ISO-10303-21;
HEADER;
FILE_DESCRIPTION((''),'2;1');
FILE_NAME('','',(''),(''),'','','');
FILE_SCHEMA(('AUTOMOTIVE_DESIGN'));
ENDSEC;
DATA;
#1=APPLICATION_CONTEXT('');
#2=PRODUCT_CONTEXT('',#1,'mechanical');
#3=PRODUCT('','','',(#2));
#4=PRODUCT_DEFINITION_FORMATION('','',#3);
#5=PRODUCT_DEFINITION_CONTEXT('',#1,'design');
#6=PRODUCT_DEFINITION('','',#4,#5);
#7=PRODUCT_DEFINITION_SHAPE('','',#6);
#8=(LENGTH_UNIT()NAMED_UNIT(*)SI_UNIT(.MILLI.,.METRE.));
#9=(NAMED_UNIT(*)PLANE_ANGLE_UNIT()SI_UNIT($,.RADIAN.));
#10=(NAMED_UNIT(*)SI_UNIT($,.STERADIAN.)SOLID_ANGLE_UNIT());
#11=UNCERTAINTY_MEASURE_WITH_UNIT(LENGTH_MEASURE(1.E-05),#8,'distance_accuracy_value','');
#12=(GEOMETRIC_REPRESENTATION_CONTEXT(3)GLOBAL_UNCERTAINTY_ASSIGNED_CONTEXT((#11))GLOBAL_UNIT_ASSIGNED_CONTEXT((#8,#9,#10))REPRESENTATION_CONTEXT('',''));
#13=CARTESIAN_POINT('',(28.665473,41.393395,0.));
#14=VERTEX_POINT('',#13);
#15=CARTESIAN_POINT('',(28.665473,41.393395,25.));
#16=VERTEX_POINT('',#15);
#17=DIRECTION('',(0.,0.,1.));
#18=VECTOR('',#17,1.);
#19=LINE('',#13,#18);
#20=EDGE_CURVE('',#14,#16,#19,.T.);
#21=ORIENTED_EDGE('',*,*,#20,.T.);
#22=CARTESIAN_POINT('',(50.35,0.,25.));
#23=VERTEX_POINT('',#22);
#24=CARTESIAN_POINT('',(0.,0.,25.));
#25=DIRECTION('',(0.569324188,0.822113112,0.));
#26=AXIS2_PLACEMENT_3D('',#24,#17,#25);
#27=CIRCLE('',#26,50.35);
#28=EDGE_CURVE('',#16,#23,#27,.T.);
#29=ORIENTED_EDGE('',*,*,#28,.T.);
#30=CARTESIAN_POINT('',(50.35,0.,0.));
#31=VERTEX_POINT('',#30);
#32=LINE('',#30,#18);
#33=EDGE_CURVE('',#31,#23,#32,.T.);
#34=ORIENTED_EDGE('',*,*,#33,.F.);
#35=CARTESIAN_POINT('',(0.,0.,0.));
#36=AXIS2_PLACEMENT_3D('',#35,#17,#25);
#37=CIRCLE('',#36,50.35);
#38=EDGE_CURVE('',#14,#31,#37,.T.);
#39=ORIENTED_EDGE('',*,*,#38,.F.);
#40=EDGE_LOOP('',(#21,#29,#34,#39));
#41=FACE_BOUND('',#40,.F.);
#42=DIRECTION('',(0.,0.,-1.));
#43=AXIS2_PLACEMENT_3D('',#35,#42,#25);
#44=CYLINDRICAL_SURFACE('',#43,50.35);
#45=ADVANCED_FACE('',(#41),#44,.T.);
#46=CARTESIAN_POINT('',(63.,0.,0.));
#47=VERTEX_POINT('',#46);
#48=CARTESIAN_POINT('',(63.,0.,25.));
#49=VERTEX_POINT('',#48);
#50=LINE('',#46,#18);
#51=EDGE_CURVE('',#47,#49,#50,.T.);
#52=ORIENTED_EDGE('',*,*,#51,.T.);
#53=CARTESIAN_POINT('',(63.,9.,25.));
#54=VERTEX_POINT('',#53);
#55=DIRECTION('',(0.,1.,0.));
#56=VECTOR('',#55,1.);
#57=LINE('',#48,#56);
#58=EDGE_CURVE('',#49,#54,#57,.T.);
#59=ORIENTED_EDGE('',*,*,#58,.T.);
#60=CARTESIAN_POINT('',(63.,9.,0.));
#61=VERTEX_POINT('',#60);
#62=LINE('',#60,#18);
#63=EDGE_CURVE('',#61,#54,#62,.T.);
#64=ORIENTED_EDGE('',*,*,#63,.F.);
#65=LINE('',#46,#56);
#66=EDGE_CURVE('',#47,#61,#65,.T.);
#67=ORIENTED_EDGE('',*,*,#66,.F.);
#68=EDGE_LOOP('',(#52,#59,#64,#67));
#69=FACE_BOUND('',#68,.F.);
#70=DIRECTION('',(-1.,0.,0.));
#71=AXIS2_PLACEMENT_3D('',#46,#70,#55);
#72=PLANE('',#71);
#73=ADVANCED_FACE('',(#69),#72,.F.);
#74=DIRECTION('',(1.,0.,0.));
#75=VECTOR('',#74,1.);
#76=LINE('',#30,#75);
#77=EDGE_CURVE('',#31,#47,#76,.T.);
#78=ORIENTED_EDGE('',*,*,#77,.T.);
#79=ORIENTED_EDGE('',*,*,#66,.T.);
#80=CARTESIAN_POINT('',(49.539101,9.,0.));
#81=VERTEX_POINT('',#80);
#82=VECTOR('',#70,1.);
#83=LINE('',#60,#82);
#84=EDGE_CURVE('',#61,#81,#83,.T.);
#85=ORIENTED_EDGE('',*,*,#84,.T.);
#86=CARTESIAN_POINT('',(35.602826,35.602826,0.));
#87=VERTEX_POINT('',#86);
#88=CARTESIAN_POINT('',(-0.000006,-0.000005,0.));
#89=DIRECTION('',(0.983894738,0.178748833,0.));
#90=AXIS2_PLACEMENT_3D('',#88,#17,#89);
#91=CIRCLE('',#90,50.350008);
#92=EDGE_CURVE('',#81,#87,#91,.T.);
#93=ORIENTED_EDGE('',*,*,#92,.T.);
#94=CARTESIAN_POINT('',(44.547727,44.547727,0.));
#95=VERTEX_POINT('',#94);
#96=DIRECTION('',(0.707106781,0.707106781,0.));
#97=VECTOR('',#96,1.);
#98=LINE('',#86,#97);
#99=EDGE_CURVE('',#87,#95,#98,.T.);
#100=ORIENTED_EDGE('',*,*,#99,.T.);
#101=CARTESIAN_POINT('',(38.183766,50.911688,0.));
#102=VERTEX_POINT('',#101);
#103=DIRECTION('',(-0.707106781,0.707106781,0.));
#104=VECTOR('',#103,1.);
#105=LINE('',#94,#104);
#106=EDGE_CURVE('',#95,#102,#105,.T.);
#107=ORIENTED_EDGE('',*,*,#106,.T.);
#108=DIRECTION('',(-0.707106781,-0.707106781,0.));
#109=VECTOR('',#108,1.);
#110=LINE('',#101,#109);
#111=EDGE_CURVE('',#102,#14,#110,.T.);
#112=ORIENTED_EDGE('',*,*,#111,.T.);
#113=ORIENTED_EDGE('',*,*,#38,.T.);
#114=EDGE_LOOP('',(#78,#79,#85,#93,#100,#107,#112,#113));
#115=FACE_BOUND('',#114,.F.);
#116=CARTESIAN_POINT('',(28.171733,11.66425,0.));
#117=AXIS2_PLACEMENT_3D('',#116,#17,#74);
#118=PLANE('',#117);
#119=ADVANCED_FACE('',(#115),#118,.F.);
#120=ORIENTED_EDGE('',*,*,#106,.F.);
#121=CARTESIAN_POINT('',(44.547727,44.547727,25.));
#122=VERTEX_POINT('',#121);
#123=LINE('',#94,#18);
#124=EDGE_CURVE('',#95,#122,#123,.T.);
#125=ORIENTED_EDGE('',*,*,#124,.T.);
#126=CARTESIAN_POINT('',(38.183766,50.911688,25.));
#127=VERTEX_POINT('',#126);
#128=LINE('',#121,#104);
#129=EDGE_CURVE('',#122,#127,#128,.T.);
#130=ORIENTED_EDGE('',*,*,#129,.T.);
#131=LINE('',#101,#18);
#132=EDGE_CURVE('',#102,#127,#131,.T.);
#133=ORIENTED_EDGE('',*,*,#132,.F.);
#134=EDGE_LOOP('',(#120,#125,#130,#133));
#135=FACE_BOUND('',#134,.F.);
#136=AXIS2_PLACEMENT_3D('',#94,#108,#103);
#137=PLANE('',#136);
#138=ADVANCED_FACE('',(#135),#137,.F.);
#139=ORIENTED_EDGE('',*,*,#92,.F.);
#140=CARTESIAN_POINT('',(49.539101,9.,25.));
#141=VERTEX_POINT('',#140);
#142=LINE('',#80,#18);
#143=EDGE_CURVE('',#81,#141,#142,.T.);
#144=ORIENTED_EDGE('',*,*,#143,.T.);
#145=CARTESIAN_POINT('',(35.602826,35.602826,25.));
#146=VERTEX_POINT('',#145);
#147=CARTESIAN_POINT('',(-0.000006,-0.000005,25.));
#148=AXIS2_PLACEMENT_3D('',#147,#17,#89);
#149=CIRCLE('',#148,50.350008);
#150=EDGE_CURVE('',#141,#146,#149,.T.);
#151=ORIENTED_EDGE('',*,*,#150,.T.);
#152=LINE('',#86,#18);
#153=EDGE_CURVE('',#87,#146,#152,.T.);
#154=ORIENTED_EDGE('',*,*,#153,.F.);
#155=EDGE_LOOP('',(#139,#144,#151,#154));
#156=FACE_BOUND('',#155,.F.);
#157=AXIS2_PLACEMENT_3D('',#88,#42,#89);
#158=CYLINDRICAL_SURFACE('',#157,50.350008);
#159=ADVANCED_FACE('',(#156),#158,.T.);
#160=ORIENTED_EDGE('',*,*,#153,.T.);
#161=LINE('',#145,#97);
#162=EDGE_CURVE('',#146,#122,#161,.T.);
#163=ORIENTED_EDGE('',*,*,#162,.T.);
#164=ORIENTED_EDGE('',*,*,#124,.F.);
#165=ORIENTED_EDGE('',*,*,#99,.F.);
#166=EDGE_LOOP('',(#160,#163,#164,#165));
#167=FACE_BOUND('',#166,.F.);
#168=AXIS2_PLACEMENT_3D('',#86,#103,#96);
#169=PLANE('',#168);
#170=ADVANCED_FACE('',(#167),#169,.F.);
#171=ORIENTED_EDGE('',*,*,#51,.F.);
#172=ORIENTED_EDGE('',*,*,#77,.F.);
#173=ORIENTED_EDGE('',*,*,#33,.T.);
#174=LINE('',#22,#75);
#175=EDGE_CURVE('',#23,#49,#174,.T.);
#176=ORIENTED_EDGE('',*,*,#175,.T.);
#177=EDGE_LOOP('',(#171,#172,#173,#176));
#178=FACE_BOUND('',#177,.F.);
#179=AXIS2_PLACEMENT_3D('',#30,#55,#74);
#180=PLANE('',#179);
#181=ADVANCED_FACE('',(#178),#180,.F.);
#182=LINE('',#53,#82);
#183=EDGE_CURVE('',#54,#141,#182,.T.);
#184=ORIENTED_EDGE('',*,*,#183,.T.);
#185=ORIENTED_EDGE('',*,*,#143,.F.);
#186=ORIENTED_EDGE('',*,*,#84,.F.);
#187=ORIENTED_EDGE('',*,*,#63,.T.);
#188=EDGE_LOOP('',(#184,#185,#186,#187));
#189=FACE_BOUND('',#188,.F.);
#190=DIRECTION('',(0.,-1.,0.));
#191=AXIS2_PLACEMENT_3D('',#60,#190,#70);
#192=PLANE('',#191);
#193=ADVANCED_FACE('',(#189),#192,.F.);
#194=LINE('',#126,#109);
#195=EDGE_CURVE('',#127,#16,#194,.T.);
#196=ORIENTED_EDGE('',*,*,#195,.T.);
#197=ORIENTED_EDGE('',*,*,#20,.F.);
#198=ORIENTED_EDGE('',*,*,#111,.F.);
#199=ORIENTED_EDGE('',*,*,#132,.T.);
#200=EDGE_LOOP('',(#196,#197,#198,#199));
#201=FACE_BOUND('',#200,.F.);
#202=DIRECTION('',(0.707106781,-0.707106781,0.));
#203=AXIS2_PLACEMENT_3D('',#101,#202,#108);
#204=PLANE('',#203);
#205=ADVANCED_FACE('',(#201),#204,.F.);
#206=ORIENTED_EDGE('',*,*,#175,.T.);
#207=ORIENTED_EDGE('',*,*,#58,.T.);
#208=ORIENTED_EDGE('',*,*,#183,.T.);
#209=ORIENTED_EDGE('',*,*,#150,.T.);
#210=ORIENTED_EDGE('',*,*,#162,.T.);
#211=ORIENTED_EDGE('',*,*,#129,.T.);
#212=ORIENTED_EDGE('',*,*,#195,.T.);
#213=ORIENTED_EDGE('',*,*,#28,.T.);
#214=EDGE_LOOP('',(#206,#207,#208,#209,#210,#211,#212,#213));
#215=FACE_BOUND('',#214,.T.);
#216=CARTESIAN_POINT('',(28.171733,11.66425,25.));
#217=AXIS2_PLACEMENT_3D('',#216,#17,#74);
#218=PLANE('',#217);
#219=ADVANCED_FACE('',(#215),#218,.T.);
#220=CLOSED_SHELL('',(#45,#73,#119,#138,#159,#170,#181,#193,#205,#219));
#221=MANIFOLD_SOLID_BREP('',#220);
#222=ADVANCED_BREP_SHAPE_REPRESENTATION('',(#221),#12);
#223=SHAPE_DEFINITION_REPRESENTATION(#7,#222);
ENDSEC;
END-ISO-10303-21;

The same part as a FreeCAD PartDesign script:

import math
import FreeCAD as App
import Part
import Sketcher

V = App.Vector
Q = App.Units.Quantity

doc = App.newDocument("Part")
body = doc.addObject("PartDesign::Body", "Body")

sketch1 = body.newObject("Sketcher::SketchObject", "Sketch")
sketch1.AttachmentSupport = (doc.getObject("XY_Plane"), [""])
sketch1.MapMode = "FlatFace"
sketch1.addGeometry([
    Part.LineSegment(V(50, 0, 0), V(63, 0, 0)),
    Part.LineSegment(V(63, 0, 0), V(63, 9, 0)),
    Part.LineSegment(V(63, 9, 0), V(50, 9, 0)),
    Part.ArcOfCircle(Part.Circle(V(0, 0, 0), V(0, 0, 1), 50), math.radians(10), math.radians(45)),
    Part.LineSegment(V(36, 36, 0), V(45, 45, 0)),
    Part.LineSegment(V(45, 45, 0), V(38, 51, 0)),
    Part.LineSegment(V(38, 51, 0), V(29, 41, 0)),
    Part.ArcOfCircle(Part.Circle(V(0, 0, 0), V(0, 0, 1), 50), math.radians(55), math.radians(360)),
], False)
sketch1.addConstraint([
    Sketcher.Constraint("Coincident", 0, 2, 1, 1),
    Sketcher.Constraint("Coincident", 1, 2, 2, 1),
    Sketcher.Constraint("Coincident", 2, 2, 3, 1),
    Sketcher.Constraint("Coincident", 3, 2, 4, 1),
    Sketcher.Constraint("Coincident", 4, 2, 5, 1),
    Sketcher.Constraint("Coincident", 5, 2, 6, 1),
    Sketcher.Constraint("Coincident", 6, 2, 7, 1),
    Sketcher.Constraint("Coincident", 7, 2, 0, 1),
    Sketcher.Constraint("Horizontal", 0),
    Sketcher.Constraint("Vertical", 1),
    Sketcher.Constraint("Horizontal", 2),
    Sketcher.Constraint("Coincident", 3, 3, -1, 1),
    Sketcher.Constraint("Coincident", 7, 3, -1, 1),
    Sketcher.Constraint("PointOnObject", 0, 2, -1),
    Sketcher.Constraint("Perpendicular", 4, 5),
    Sketcher.Constraint("Perpendicular", 5, 6),
    Sketcher.Constraint("DistanceY", 1, 1, 1, 2, 9.0),
    Sketcher.Constraint("Angle", 4, Q("45 deg")),
    Sketcher.Constraint("Radius", 7, 50.35),
    Sketcher.Constraint("Distance", 5, 9.0),
    Sketcher.Constraint("DistanceX", -1, 1, 0, 2, 63.0),
    Sketcher.Constraint("Distance", 4, 12.65),
    Sketcher.Constraint("DistanceX", 2, 2, 2, 1, 13.460899),
    Sketcher.Constraint("Distance", 6, 13.460899),
])
pad1 = body.newObject("PartDesign::Pad", "Pad")
pad1.Profile = sketch1
pad1.Length = 25

doc.recompute()
